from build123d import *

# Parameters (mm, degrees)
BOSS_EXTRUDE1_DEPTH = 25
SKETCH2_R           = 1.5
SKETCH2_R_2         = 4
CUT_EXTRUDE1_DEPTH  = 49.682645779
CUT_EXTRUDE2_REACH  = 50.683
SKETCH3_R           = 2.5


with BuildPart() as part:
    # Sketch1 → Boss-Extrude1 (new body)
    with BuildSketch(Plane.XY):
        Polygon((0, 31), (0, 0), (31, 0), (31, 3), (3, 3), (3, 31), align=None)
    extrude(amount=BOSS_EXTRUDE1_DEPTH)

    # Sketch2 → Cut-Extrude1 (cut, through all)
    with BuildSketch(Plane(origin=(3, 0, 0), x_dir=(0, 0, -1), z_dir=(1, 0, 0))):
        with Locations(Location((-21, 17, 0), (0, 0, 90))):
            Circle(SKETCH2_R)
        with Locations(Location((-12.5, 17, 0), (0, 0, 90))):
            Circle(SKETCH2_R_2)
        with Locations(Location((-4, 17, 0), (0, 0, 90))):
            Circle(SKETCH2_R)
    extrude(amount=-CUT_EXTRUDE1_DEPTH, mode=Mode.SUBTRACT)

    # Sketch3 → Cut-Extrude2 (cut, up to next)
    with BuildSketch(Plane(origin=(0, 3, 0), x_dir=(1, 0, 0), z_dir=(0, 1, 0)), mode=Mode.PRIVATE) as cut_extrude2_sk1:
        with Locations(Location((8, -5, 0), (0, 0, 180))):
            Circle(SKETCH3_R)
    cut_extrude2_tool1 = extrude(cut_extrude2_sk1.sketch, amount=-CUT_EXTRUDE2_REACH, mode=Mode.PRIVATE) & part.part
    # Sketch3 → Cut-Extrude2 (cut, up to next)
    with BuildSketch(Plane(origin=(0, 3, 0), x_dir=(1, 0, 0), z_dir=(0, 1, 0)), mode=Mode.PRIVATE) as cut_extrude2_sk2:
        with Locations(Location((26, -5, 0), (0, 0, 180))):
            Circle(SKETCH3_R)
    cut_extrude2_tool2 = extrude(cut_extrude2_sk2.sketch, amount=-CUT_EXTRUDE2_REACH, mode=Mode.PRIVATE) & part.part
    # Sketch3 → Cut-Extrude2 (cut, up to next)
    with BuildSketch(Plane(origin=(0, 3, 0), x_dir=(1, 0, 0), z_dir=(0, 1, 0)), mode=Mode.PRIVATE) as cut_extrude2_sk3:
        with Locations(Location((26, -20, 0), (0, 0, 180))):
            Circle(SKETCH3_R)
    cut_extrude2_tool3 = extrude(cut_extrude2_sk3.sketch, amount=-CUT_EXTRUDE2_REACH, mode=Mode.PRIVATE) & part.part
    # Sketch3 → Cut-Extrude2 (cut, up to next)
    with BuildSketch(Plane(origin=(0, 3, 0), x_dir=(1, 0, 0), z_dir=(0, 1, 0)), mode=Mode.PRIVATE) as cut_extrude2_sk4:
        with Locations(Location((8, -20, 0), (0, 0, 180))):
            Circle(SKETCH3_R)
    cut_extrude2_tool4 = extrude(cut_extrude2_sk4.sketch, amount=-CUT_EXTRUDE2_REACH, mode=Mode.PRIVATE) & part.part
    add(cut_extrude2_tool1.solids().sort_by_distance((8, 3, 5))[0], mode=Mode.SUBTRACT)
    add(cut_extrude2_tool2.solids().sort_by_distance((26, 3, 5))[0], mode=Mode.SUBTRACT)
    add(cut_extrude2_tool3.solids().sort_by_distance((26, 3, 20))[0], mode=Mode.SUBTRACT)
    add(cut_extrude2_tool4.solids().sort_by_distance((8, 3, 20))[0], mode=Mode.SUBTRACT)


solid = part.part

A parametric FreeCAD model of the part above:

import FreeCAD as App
import Part
import Sketcher
from FreeCAD import Vector

doc = App.newDocument("Part")
params = doc.addObject("Spreadsheet::Sheet", "Params")
for row, (alias, value) in enumerate([
    ("sketch1_width", "31 mm"),
    ("sketch1_width2", "28 mm"),
    ("pad1_length", "25 mm"),
    ("sketch2_diameter", "3 mm"),
    ("sketch2_diameter2", "8 mm"),
    ("sketch3_diameter", "5 mm"),
    ("sketch4_diameter", "5 mm"),
    ("sketch5_diameter", "5 mm"),
    ("sketch6_diameter", "5 mm"),
], start=1):
    params.set(f"A{row}", alias)
    params.set(f"B{row}", "=" + value)
    params.setAlias(f"B{row}", alias)

body = doc.addObject("PartDesign::Body", "Body")

sketch1 = body.newObject("Sketcher::SketchObject", "Sketch")
sketch1.AttachmentSupport = (doc.getObject("XY_Plane"), [""])
sketch1.MapMode = "FlatFace"
sketch1.addGeometry([
    Part.LineSegment(Vector(0, 31, 0), Vector(0, 0, 0)),
    Part.LineSegment(Vector(0, 0, 0), Vector(31, 0, 0)),
    Part.LineSegment(Vector(31, 0, 0), Vector(31, 3, 0)),
    Part.LineSegment(Vector(31, 3, 0), Vector(3, 3, 0)),
    Part.LineSegment(Vector(3, 3, 0), Vector(3, 31, 0)),
    Part.LineSegment(Vector(3, 31, 0), Vector(0, 31, 0)),
], False)
sketch1.addConstraint([
    Sketcher.Constraint("Coincident", 0, 2, 1, 1),
    Sketcher.Constraint("Coincident", 1, 2, 2, 1),
    Sketcher.Constraint("Coincident", 2, 2, 3, 1),
    Sketcher.Constraint("Coincident", 3, 2, 4, 1),
    Sketcher.Constraint("Coincident", 4, 2, 5, 1),
    Sketcher.Constraint("Coincident", 5, 2, 0, 1),
    Sketcher.Constraint("Vertical", 0),
    Sketcher.Constraint("Horizontal", 1),
    Sketcher.Constraint("Vertical", 2),
    Sketcher.Constraint("Horizontal", 3),
    Sketcher.Constraint("Vertical", 4),
    Sketcher.Constraint("Horizontal", 5),
    Sketcher.Constraint("Coincident", 0, 2, -1, 1),
    Sketcher.Constraint("Equal", 1, 0),
    Sketcher.Constraint("Equal", 5, 2),
    Sketcher.Constraint("DistanceX", 1, 1, 1, 2, 31.0),
    Sketcher.Constraint("DistanceX", 3, 2, 3, 1, 28.0),
])
sketch1.setExpression("Constraints[15]", "Params.sketch1_width")
sketch1.setExpression("Constraints[16]", "Params.sketch1_width2")
pad1 = body.newObject("PartDesign::Pad", "Pad")
pad1.Profile = sketch1
pad1.setExpression("Length", "Params.pad1_length")

sketch2 = body.newObject("Sketcher::SketchObject", "Sketch001")
sketch2.AttachmentSupport = (doc.getObject("YZ_Plane"), [""])
sketch2.MapMode = "FlatFace"
sketch2.AttachmentOffset = App.Placement(Vector(0, 0, 3), App.Rotation())
sketch2.addGeometry([
    Part.Circle(Vector(17, 21, 0), Vector(0, 0, 1), 1.5),
    Part.Circle(Vector(17, 12.5, 0), Vector(0, 0, 1), 4),
    Part.Circle(Vector(17, 4, 0), Vector(0, 0, 1), 1.5),
], False)
sketch2.addConstraint([
    Sketcher.Constraint("Equal", 0, 2),
    Sketcher.Constraint("Vertical", 0, 3, 1, 3),
    Sketcher.Constraint("Vertical", 1, 3, 2, 3),
    Sketcher.Constraint("Diameter", 0, 3.0),
    Sketcher.Constraint("Diameter", 1, 8.0),
    Sketcher.Constraint("DistanceX", -1, 1, 0, 3, 17.0),
    Sketcher.Constraint("DistanceY", -1, 1, 0, 3, 21.0),
    Sketcher.Constraint("DistanceY", -1, 1, 2, 3, 4.0),
    Sketcher.Constraint("DistanceY", -1, 1, 1, 3, 12.5),
])
sketch2.setExpression("Constraints[3]", "Params.sketch2_diameter")
sketch2.setExpression("Constraints[4]", "Params.sketch2_diameter2")
pocket1 = body.newObject("PartDesign::Pocket", "Pocket")
pocket1.Profile = sketch2
pocket1.Type = "ThroughAll"

sketch3 = body.newObject("Sketcher::SketchObject", "Sketch002")
sketch3.AttachmentSupport = (doc.getObject("XZ_Plane"), [""])
sketch3.MapMode = "FlatFace"
sketch3.AttachmentOffset = App.Placement(Vector(0, 0, -3), App.Rotation())
sketch3.addGeometry(Part.Circle(Vector(8, 5, 0), Vector(0, 0, 1), 2.5), False)
sketch3.addConstraint([
    Sketcher.Constraint("Diameter", 0, 5.0),
    Sketcher.Constraint("DistanceX", -1, 1, 0, 3, 8.0),
    Sketcher.Constraint("DistanceY", -1, 1, 0, 3, 5.0),
])
sketch3.setExpression("Constraints[0]", "Params.sketch3_diameter")
pocket2 = body.newObject("PartDesign::Pocket", "Pocket001")
pocket2.Profile = sketch3
pocket2.Type = "UpToFirst"
pocket2.Reversed = True

sketch4 = body.newObject("Sketcher::SketchObject", "Sketch003")
sketch4.AttachmentSupport = (doc.getObject("XZ_Plane"), [""])
sketch4.MapMode = "FlatFace"
sketch4.AttachmentOffset = App.Placement(Vector(0, 0, -3), App.Rotation())
sketch4.addGeometry(Part.Circle(Vector(26, 5, 0), Vector(0, 0, 1), 2.5), False)
sketch4.addConstraint([
    Sketcher.Constraint("Diameter", 0, 5.0),
    Sketcher.Constraint("DistanceX", -1, 1, 0, 3, 26.0),
    Sketcher.Constraint("DistanceY", -1, 1, 0, 3, 5.0),
])
sketch4.setExpression("Constraints[0]", "Params.sketch4_diameter")
pocket3 = body.newObject("PartDesign::Pocket", "Pocket002")
pocket3.Profile = sketch4
pocket3.Type = "UpToFirst"
pocket3.Reversed = True

sketch5 = body.newObject("Sketcher::SketchObject", "Sketch004")
sketch5.AttachmentSupport = (doc.getObject("XZ_Plane"), [""])
sketch5.MapMode = "FlatFace"
sketch5.AttachmentOffset = App.Placement(Vector(0, 0, -3), App.Rotation())
sketch5.addGeometry(Part.Circle(Vector(26, 20, 0), Vector(0, 0, 1), 2.5), False)
sketch5.addConstraint([
    Sketcher.Constraint("Diameter", 0, 5.0),
    Sketcher.Constraint("DistanceX", -1, 1, 0, 3, 26.0),
    Sketcher.Constraint("DistanceY", -1, 1, 0, 3, 20.0),
])
sketch5.setExpression("Constraints[0]", "Params.sketch5_diameter")
pocket4 = body.newObject("PartDesign::Pocket", "Pocket003")
pocket4.Profile = sketch5
pocket4.Type = "UpToFirst"
pocket4.Reversed = True

sketch6 = body.newObject("Sketcher::SketchObject", "Sketch005")
sketch6.AttachmentSupport = (doc.getObject("XZ_Plane"), [""])
sketch6.MapMode = "FlatFace"
sketch6.AttachmentOffset = App.Placement(Vector(0, 0, -3), App.Rotation())
sketch6.addGeometry(Part.Circle(Vector(8, 20, 0), Vector(0, 0, 1), 2.5), False)
sketch6.addConstraint([
    Sketcher.Constraint("Diameter", 0, 5.0),
    Sketcher.Constraint("DistanceX", -1, 1, 0, 3, 8.0),
    Sketcher.Constraint("DistanceY", -1, 1, 0, 3, 20.0),
])
sketch6.setExpression("Constraints[0]", "Params.sketch6_diameter")
pocket5 = body.newObject("PartDesign::Pocket", "Pocket004")
pocket5.Profile = sketch6
pocket5.Type = "UpToFirst"
pocket5.Reversed = True

doc.recompute()
